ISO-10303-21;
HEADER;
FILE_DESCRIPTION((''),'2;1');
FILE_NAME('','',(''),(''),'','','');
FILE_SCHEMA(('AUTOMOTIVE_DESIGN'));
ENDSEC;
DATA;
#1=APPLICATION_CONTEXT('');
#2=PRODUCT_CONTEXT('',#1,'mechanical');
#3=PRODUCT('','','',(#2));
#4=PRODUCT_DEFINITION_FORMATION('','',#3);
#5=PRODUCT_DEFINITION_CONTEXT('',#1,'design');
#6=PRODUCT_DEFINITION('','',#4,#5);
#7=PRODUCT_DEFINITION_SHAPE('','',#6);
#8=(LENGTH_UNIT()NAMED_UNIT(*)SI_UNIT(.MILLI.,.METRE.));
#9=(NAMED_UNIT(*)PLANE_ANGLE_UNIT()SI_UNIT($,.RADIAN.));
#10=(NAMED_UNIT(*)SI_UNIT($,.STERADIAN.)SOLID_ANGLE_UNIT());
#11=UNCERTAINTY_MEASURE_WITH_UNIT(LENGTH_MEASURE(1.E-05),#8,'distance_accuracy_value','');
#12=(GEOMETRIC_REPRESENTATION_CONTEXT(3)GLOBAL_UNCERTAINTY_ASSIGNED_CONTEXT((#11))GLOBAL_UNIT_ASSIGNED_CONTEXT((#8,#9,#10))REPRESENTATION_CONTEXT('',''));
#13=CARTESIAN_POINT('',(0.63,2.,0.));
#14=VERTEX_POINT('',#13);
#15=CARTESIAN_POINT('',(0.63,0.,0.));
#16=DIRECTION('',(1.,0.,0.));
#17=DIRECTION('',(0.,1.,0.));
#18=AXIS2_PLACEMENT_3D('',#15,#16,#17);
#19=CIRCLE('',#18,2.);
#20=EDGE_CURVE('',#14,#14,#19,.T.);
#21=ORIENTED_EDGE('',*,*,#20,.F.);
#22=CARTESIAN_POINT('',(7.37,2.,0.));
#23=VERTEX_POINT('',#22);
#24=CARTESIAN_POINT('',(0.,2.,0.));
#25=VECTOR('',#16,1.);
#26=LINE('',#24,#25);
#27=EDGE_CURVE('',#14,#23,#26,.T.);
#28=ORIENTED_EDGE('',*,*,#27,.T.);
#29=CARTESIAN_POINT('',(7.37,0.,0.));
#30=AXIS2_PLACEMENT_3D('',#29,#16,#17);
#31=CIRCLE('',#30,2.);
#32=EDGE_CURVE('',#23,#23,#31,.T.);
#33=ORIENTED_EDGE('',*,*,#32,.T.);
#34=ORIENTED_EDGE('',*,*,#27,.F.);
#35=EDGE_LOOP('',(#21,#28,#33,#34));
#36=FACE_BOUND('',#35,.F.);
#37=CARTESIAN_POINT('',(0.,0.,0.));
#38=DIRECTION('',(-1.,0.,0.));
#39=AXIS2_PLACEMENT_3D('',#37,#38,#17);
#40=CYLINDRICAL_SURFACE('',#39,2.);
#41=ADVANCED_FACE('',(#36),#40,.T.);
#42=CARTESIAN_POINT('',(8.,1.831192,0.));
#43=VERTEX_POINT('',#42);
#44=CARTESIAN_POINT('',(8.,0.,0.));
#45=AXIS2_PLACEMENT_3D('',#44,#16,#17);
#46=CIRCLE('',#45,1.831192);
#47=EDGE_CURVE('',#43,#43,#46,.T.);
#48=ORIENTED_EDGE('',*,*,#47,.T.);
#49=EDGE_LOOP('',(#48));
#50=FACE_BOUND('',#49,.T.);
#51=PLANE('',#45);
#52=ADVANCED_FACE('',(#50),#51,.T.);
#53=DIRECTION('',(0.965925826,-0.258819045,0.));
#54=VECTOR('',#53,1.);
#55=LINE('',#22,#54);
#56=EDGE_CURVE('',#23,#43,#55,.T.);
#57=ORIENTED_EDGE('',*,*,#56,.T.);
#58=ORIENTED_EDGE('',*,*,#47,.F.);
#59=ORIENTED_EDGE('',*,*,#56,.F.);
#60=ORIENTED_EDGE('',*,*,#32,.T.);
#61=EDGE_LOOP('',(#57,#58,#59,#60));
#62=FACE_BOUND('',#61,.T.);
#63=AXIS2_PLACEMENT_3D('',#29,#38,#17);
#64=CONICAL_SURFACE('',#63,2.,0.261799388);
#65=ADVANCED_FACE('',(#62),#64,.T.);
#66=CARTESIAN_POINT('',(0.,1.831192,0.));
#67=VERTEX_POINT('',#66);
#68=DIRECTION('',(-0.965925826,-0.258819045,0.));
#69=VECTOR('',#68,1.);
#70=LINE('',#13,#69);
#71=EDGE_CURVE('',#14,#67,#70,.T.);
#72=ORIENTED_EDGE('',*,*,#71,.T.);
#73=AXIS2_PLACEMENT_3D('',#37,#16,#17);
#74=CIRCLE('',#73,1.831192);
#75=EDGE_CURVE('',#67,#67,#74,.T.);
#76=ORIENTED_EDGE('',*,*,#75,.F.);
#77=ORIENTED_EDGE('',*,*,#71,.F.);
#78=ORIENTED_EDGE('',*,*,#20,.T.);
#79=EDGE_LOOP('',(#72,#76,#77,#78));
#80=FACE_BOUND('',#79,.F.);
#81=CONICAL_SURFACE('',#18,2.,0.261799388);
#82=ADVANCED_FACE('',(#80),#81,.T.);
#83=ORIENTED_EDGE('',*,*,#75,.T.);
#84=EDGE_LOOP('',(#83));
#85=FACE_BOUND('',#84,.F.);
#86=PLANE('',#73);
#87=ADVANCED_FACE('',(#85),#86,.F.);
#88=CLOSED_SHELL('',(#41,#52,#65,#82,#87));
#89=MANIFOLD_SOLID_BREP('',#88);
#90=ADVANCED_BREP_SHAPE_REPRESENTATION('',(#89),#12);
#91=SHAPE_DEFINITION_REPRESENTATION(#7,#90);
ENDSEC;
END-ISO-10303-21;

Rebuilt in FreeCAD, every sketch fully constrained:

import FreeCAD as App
import Part
import Sketcher

V = App.Vector


def edges_at(feature, points):
    """Names of the edges that pass closest to the given points."""
    edges = feature.Shape.Edges
    near = lambda p: min(range(len(edges)), key=lambda i: edges[i].distToShape(Part.Vertex(*p))[0])
    return sorted({f"Edge{near(p) + 1}" for p in points})

doc = App.newDocument("Part")
body = doc.addObject("PartDesign::Body", "Body")

# Sketch on YZ plane
sketch1 = body.newObject("Sketcher::SketchObject", "Sketch")
sketch1.AttachmentSupport = (doc.getObject("YZ_Plane"), [""])
sketch1.MapMode = "FlatFace"
sketch1.addGeometry(Part.Circle(V(0, 0, 0), V(0, 0, 1), 2), False)
sketch1.addConstraint(Sketcher.Constraint("Coincident", 0, 3, -1, 1))
sketch1.addConstraint(Sketcher.Constraint("Diameter", 0, 4.0))
pad1 = body.newObject("PartDesign::Pad", "Pad")
pad1.Profile = sketch1
pad1.Length = 8
doc.recompute()

chamfer = body.newObject("PartDesign::Chamfer", "Chamfer")
chamfer.Base = (pad1, edges_at(pad1, [(0, -2, 0)]))
chamfer.ChamferType = "Distance and Angle"
chamfer.Size = 0.63
chamfer.Angle = 15
doc.recompute()

chamfer2 = body.newObject("PartDesign::Chamfer", "Chamfer001")
chamfer2.Base = (chamfer, edges_at(chamfer, [(8, -2, 0)]))
chamfer2.ChamferType = "Distance and Angle"
chamfer2.Size = 0.63
chamfer2.Angle = 15

doc.recompute()
